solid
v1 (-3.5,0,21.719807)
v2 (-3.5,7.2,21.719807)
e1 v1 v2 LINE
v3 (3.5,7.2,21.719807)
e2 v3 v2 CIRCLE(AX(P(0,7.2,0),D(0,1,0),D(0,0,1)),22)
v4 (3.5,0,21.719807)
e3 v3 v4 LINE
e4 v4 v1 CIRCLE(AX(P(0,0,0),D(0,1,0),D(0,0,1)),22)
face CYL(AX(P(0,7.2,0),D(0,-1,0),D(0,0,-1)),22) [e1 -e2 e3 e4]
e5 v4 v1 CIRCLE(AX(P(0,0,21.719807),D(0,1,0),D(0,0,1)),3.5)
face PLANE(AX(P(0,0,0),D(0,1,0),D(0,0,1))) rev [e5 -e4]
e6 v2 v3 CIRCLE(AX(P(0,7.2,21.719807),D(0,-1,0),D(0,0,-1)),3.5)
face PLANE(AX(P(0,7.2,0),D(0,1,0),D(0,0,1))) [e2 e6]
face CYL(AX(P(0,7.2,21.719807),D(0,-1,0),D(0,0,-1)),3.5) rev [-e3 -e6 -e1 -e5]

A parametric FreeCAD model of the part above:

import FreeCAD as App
import Part
import Sketcher
from FreeCAD import Vector

doc = App.newDocument("Part")
body = doc.addObject("PartDesign::Body", "Body")

sketch1 = doc.addObject("Sketcher::SketchObject", "Sketch")
body.addObject(sketch1)
sketch1.AttachmentSupport = (doc.XZ_Plane, [""])
sketch1.MapMode = "FlatFace"
sketch1.addGeometry(Part.Circle(Vector(0, 0, 0), Vector(0, 0, 1), 22), False)
sketch1.addConstraint([
    Sketcher.Constraint("Coincident", 0, 3, -1, 1),
    Sketcher.Constraint("Diameter", 0, 44.0),
])
pad1 = doc.addObject("PartDesign::Pad", "Pad")
body.addObject(pad1)
pad1.Profile = sketch1
pad1.Length = 7.2
pad1.Reversed = True

sketch2 = doc.addObject("Sketcher::SketchObject", "Sketch001")
body.addObject(sketch2)
sketch2.AttachmentSupport = (doc.XZ_Plane, [""])
sketch2.MapMode = "FlatFace"
sketch2.addGeometry(Part.Circle(Vector(0, 21.719807, 0), Vector(0, 0, 1), 3.5), False)
sketch2.addConstraint([
    Sketcher.Constraint("PointOnObject", 0, 3, -2),
    Sketcher.Constraint("Diameter", 0, 7.0),
    Sketcher.Constraint("DistanceY", -1, 1, 0, 3, 21.719807),
])
pocket1 = doc.addObject("PartDesign::Pocket", "Pocket")
body.addObject(pocket1)
pocket1.Profile = sketch2
pocket1.Type = "ThroughAll"

doc.recompute()
